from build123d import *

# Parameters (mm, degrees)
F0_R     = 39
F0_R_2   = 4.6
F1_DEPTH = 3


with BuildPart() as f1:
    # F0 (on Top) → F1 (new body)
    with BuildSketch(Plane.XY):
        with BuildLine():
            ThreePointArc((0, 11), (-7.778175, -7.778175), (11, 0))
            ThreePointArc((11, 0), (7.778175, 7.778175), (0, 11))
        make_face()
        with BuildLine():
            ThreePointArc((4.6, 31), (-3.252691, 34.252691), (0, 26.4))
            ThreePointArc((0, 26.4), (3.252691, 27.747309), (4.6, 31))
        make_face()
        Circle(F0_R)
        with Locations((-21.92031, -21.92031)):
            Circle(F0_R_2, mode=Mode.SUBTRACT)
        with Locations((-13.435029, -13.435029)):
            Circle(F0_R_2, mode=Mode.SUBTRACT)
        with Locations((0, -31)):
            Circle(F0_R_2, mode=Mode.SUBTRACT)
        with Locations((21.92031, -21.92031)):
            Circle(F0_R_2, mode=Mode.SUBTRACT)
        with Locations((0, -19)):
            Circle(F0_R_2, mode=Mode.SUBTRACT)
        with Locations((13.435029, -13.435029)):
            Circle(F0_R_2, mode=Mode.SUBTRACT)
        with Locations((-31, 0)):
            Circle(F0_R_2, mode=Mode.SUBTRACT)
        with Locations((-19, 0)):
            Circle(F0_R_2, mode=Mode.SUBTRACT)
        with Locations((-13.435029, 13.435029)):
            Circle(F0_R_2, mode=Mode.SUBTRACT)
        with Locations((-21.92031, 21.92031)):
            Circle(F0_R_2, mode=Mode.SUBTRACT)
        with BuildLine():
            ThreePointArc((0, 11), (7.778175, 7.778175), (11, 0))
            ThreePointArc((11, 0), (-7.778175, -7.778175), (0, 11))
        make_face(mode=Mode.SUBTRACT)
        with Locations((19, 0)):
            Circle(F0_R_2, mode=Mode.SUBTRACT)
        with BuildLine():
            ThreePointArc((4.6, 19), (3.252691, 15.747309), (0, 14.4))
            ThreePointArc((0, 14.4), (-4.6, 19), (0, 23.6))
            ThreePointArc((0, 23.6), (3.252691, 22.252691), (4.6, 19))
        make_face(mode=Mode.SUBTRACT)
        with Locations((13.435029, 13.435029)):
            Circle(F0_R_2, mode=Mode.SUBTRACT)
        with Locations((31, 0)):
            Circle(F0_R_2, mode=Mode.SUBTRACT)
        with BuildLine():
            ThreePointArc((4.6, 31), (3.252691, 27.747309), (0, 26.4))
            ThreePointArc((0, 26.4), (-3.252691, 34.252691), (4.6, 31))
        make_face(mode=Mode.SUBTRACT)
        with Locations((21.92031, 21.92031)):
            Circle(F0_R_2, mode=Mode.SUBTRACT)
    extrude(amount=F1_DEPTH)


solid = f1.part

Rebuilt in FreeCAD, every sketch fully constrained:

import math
import FreeCAD as App
import Part
import Sketcher
Q = App.Units.Quantity

doc = App.newDocument("Part")
body = doc.addObject("PartDesign::Body", "Body")

# Sketch on XY plane
sketch1 = doc.addObject("Sketcher::SketchObject", "Sketch")
body.addObject(sketch1)
sketch1.AttachmentSupport = (doc.XY_Plane, [""])
sketch1.MapMode = "FlatFace"
sketch1.addGeometry([
    Part.Circle(App.Vector(0, 0, 0), App.Vector(0, 0, 1), 39),  # 0
    Part.Circle(App.Vector(-21.9, -21.9, 0), App.Vector(0, 0, 1), 4.6),  # 1
    Part.Circle(App.Vector(-13.4, -13.4, 0), App.Vector(0, 0, 1), 4.6),  # 2
    Part.ArcOfCircle(Part.Circle(App.Vector(0, 0, 0), App.Vector(0, 0, 1), 11), math.radians(90), math.radians(360)),  # 3
    Part.ArcOfCircle(Part.Circle(App.Vector(0, 0, 0), App.Vector(0, 0, 1), 11), math.radians(0), math.radians(90)),  # 4
    Part.Circle(App.Vector(0, -31, 0), App.Vector(0, 0, 1), 4.6),  # 5
    Part.Circle(App.Vector(0, -19, 0), App.Vector(0, 0, 1), 4.6),  # 6
    Part.Circle(App.Vector(21.9, -21.9, 0), App.Vector(0, 0, 1), 4.6),  # 7
    Part.Circle(App.Vector(13.4, -13.4, 0), App.Vector(0, 0, 1), 4.6),  # 8
    Part.Circle(App.Vector(-31, 0, 0), App.Vector(0, 0, 1), 4.6),  # 9
    Part.Circle(App.Vector(-19, 0, 0), App.Vector(0, 0, 1), 4.6),  # 10
    Part.Circle(App.Vector(-13.4, 13.4, 0), App.Vector(0, 0, 1), 4.6),  # 11
    Part.Circle(App.Vector(-21.9, 21.9, 0), App.Vector(0, 0, 1), 4.6),  # 12
    Part.Circle(App.Vector(13.4, 13.4, 0), App.Vector(0, 0, 1), 4.6),  # 13
    Part.Circle(App.Vector(19, 0, 0), App.Vector(0, 0, 1), 4.6),  # 14
    Part.Circle(App.Vector(31, 0, 0), App.Vector(0, 0, 1), 4.6),  # 15
    Part.ArcOfCircle(Part.Circle(App.Vector(0, 19, 0), App.Vector(0, 0, 1), 4.6), math.radians(0), math.radians(90)),  # 16
    Part.ArcOfCircle(Part.Circle(App.Vector(0, 19, 0), App.Vector(0, 0, 1), 4.6), math.radians(-90), math.radians(0)),  # 17
    Part.ArcOfCircle(Part.Circle(App.Vector(0, 19, 0), App.Vector(0, 0, 1), 4.6), math.radians(90), math.radians(270)),  # 18
    Part.ArcOfCircle(Part.Circle(App.Vector(0, 31, 0), App.Vector(0, 0, 1), 4.6), math.radians(0), math.radians(270)),  # 19
    Part.ArcOfCircle(Part.Circle(App.Vector(0, 31, 0), App.Vector(0, 0, 1), 4.6), math.radians(-90), math.radians(0)),  # 20
    Part.Circle(App.Vector(21.9, 21.9, 0), App.Vector(0, 0, 1), 4.6),  # 21
], False)
sketch1.addConstraint([
    Sketcher.Constraint("Tangent", 3, 1, 4, 2),
    Sketcher.Constraint("Coincident", 4, 1, 3, 2),
    Sketcher.Constraint("Tangent", 16, 1, 17, 2),
    Sketcher.Constraint("Tangent", 17, 1, 18, 2),
    Sketcher.Constraint("Tangent", 18, 1, 16, 2),
    Sketcher.Constraint("Tangent", 19, 1, 20, 2),
    Sketcher.Constraint("Coincident", 20, 1, 19, 2),
    Sketcher.Constraint("Coincident", 0, 3, -1, 1),
    Sketcher.Constraint("Coincident", 3, 3, -1, 1),
    Sketcher.Constraint("Equal", 1, 2),
    Sketcher.Constraint("Equal", 2, 5),
    Sketcher.Constraint("Equal", 5, 6),
    Sketcher.Constraint("Equal", 6, 7),
    Sketcher.Constraint("Equal", 7, 8),
    Sketcher.Constraint("Equal", 8, 9),
    Sketcher.Constraint("Equal", 9, 10),
    Sketcher.Constraint("Equal", 10, 11),
    Sketcher.Constraint("Equal", 11, 12),
    Sketcher.Constraint("Equal", 12, 13),
    Sketcher.Constraint("Equal", 13, 14),
    Sketcher.Constraint("Equal", 14, 15),
    Sketcher.Constraint("Equal", 15, 16),
    Sketcher.Constraint("Equal", 18, 19),
    Sketcher.Constraint("Equal", 20, 21),
    Sketcher.Constraint("Symmetric", 8, 3, 11, 3, -1, 1),
    Sketcher.Constraint("Symmetric", 7, 3, 12, 3, -1, 1),
    Sketcher.Constraint("Symmetric", 2, 3, 13, 3, -1, 1),
    Sketcher.Constraint("Symmetric", 10, 3, 14, 3, -1, 1),
    Sketcher.Constraint("Symmetric", 9, 3, 15, 3, -1, 1),
    Sketcher.Constraint("Symmetric", 6, 3, 16, 3, -1, 1),
    Sketcher.Constraint("Symmetric", 5, 3, 19, 3, -1, 1),
    Sketcher.Constraint("Symmetric", 1, 3, 21, 3, -1, 1),
    Sketcher.Constraint("Symmetric", 1, 3, 7, 3, -2),
    Sketcher.Constraint("Symmetric", 2, 3, 8, 3, -2),
    Sketcher.Constraint("PointOnObject", 5, 3, -2),
    Sketcher.Constraint("PointOnObject", 6, 3, -2),
    Sketcher.Constraint("PointOnObject", 9, 3, -1),
    Sketcher.Constraint("PointOnObject", 10, 3, -1),
    Sketcher.Constraint("PointOnObject", 3, 1, -2),
    Sketcher.Constraint("PointOnObject", 4, 1, -1),
    Sketcher.Constraint("PointOnObject", 17, 1, -2),
    Sketcher.Constraint("PointOnObject", 18, 1, -2),
    Sketcher.Constraint("PointOnObject", 20, 1, -2),
    Sketcher.Constraint("Horizontal", 18, 3, 16, 1),
    Sketcher.Constraint("Horizontal", 20, 3, 19, 1),
    Sketcher.Constraint("Diameter", 0, Q("78 mm")),
    Sketcher.Constraint("Radius", 3, Q("11 mm")),
    Sketcher.Constraint("Diameter", 1, Q("9.2 mm")),
    Sketcher.Constraint("DistanceY", 5, 3, -1, 1, Q("31 mm")),
    Sketcher.Constraint("DistanceY", 6, 3, -1, 1, Q("19 mm")),
    Sketcher.Constraint("DistanceX", 9, 3, -1, 1, Q("31 mm")),
    Sketcher.Constraint("DistanceX", 10, 3, -1, 1, Q("19 mm")),
    Sketcher.Constraint("DistanceX", 1, 3, -1, 1, Q("21.92031 mm")),
    Sketcher.Constraint("DistanceY", 1, 3, -1, 1, Q("21.92031 mm")),
    Sketcher.Constraint("DistanceX", 2, 3, -1, 1, Q("13.435029 mm")),
    Sketcher.Constraint("DistanceY", 2, 3, -1, 1, Q("13.435029 mm")),
])
pad1 = doc.addObject("PartDesign::Pad", "Pad")
body.addObject(pad1)
pad1.Profile = sketch1
pad1.Length = 3

doc.recompute()
